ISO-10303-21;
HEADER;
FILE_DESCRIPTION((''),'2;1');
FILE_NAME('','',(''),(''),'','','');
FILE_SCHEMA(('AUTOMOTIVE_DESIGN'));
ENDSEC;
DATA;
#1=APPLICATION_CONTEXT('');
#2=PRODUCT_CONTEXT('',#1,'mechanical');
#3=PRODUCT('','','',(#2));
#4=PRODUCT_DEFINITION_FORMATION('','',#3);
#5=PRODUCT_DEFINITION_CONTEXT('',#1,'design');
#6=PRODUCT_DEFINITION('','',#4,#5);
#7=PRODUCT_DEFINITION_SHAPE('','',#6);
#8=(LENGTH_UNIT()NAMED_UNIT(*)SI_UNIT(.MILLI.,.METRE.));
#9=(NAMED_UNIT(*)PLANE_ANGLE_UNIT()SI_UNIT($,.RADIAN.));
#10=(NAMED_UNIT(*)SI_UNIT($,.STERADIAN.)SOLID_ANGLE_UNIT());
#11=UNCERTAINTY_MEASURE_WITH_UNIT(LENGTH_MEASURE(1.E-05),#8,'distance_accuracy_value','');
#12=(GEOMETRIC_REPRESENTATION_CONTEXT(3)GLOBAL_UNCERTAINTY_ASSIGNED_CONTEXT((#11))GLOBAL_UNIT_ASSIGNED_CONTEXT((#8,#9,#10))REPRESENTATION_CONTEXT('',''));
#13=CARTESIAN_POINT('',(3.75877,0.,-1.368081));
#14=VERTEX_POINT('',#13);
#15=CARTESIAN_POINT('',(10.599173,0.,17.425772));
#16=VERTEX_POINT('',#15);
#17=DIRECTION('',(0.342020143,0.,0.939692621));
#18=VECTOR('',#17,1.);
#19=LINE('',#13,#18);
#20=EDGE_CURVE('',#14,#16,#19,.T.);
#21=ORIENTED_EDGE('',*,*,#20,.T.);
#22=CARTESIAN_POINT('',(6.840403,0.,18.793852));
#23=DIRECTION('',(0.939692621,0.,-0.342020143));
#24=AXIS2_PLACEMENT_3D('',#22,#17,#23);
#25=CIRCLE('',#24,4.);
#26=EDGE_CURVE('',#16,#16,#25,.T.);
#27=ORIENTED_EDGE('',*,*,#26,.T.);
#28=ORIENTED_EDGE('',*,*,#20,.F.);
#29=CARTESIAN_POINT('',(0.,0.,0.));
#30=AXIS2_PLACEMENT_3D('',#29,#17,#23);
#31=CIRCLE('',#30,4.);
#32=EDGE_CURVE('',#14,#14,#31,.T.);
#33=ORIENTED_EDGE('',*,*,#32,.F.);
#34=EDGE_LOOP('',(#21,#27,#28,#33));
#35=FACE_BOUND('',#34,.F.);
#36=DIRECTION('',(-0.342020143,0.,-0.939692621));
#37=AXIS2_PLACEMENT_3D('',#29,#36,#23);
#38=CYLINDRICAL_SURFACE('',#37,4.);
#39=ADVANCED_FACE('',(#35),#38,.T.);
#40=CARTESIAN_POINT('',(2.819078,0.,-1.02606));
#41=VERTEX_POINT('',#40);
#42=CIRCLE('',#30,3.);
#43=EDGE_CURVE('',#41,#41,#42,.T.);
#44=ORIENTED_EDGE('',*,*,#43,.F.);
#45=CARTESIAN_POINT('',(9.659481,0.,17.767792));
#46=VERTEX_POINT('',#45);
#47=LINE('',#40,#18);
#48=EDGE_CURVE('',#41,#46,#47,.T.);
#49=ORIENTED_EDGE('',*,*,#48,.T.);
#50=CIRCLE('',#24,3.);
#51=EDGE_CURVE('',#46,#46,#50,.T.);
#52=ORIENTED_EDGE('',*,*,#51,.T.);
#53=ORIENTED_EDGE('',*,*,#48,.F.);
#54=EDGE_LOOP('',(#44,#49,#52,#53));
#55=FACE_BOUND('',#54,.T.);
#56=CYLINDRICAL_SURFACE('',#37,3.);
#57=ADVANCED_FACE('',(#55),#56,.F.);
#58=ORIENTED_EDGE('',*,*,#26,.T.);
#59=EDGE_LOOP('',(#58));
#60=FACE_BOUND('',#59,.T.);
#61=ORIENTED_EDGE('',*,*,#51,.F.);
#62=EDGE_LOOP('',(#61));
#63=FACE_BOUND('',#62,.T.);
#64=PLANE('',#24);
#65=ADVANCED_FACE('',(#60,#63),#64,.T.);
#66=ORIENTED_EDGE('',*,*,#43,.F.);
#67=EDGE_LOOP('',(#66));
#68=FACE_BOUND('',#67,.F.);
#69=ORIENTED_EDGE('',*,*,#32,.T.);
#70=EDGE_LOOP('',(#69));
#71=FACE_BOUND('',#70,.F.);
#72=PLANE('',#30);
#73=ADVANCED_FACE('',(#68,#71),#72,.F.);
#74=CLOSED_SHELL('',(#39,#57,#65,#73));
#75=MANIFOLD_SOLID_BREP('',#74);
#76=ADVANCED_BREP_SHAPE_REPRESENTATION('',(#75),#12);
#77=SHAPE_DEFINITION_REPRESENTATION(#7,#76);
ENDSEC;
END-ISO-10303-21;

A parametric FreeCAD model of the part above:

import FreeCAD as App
import Part
import Sketcher
Q = App.Units.Quantity

doc = App.newDocument("Part")
body = doc.addObject("PartDesign::Body", "Body")

# Sketch on XY plane
sketch1 = body.newObject("Sketcher::SketchObject", "Sketch")
sketch1.AttachmentSupport = (doc.getObject("XY_Plane"), [""])
sketch1.MapMode = "FlatFace"
sketch1.addGeometry(Part.Circle(App.Vector(0, 0, 0), App.Vector(0, 0, 1), 3), False)
sketch1.addConstraint([
    Sketcher.Constraint("Coincident", 0, 3, -1, 1),
    Sketcher.Constraint("Diameter", 0, Q("6 mm")),
])
pad1 = body.newObject("PartDesign::Pad", "Pad")
pad1.Profile = sketch1
pad1.Length = 20
body2 = doc.addObject("PartDesign::Body", "Body001")

# Sketch on XY plane
sketch2 = body2.newObject("Sketcher::SketchObject", "Sketch001")
sketch2.AttachmentSupport = (doc.getObject("XY_Plane001"), [""])
sketch2.MapMode = "FlatFace"
sketch2.addGeometry(Part.Circle(App.Vector(0, 0, 0), App.Vector(0, 0, 1), 4), False)
sketch2.addConstraint([
    Sketcher.Constraint("Coincident", 0, 3, -1, 1),
    Sketcher.Constraint("Diameter", 0, Q("8 mm")),
])
pad2 = body2.newObject("PartDesign::Pad", "Pad001")
pad2.Profile = sketch2
pad2.Length = 20
doc.recompute()

boolean = body2.newObject("PartDesign::Boolean", "Boolean")
boolean.Type = "Cut"
boolean.addObjects([body])
body3 = doc.addObject("PartDesign::Body", "Body002")
doc.recompute()

body2.Placement = App.Placement(App.Vector(0, 0, 0), App.Rotation(App.Vector(0, 1, 0), 20))
boolean2 = body3.newObject("PartDesign::Boolean", "Boolean001")
boolean2.Type = "Fuse"
boolean2.addObjects([body2])

doc.recompute()
